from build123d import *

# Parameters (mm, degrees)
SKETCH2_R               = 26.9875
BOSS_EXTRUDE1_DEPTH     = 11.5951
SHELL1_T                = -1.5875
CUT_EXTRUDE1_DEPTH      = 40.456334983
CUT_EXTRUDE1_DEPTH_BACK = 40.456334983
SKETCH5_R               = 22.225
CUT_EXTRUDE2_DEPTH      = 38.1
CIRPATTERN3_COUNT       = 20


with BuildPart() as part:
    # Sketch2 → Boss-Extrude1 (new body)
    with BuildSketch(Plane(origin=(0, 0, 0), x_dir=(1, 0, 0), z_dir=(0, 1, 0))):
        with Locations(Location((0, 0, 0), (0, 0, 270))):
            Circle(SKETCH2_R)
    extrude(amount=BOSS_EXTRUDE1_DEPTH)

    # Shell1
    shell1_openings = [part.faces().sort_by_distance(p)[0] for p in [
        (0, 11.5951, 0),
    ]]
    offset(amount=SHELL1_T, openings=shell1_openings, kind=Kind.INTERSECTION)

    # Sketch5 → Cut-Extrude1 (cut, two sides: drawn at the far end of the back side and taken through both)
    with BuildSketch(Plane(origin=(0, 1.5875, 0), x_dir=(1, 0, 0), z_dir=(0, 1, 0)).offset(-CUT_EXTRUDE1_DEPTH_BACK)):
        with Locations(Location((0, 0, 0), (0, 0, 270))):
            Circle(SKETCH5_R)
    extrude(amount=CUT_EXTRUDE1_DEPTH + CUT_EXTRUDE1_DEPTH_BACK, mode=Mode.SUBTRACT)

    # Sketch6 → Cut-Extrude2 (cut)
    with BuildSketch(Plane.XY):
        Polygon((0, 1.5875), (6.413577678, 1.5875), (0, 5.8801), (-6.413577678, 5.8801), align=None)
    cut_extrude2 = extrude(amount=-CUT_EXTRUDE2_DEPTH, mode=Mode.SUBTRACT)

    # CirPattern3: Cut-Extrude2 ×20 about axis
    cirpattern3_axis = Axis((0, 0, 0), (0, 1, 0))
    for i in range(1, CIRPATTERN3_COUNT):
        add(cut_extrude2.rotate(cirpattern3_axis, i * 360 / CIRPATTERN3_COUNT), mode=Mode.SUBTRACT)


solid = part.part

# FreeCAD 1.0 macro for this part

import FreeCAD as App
import Part
import Sketcher

V = App.Vector
Q = App.Units.Quantity


def faces_at(feature, points):
    """Names of the faces that lie closest to the given points."""
    faces = feature.Shape.Faces
    near = lambda p: min(range(len(faces)), key=lambda i: faces[i].distToShape(Part.Vertex(*p))[0])
    return sorted({f"Face{near(p) + 1}" for p in points})

doc = App.newDocument("Part")
body = doc.addObject("PartDesign::Body", "Body")

sketch1 = doc.addObject("Sketcher::SketchObject", "Sketch")
body.addObject(sketch1)
sketch1.AttachmentSupport = (doc.XZ_Plane, [""])
sketch1.MapMode = "FlatFace"
sketch1.addGeometry(Part.Circle(V(0, 0, 0), V(0, 0, 1), 27), False)
sketch1.addConstraint(Sketcher.Constraint("Coincident", 0, 3, -1, 1))
sketch1.addConstraint(Sketcher.Constraint("Diameter", 0, Q("2.125 in")))
pad1 = doc.addObject("PartDesign::Pad", "Pad")
body.addObject(pad1)
pad1.Profile = sketch1
pad1.Length = Q("0.4565 in")
pad1.Reversed = True
doc.recompute()

thickness = doc.addObject("PartDesign::Thickness", "Thickness")
body.addObject(thickness)
thickness.Base = (pad1, faces_at(pad1, [(0, 11.595, 0)]))
thickness.Value = Q("0.0625 in")
thickness.Reversed = True
thickness.Join = "Intersection"

sketch2 = doc.addObject("Sketcher::SketchObject", "Sketch001")
body.addObject(sketch2)
sketch2.AttachmentSupport = (doc.XZ_Plane, [""])
sketch2.MapMode = "FlatFace"
sketch2.AttachmentOffset = App.Placement(V(0, 0, -0.0625 * 25.4), App.Rotation())
sketch2.addGeometry(Part.Circle(V(0, 0, 0), V(0, 0, 1), 22), False)
sketch2.addConstraint(Sketcher.Constraint("Coincident", 0, 3, -1, 1))
sketch2.addConstraint(Sketcher.Constraint("Diameter", 0, Q("1.75 in")))
pocket1 = doc.addObject("PartDesign::Pocket", "Pocket")
body.addObject(pocket1)
pocket1.Profile = sketch2
pocket1.Type = "ThroughAll"
pocket1.Midplane = True

sketch3 = doc.addObject("Sketcher::SketchObject", "Sketch002")
body.addObject(sketch3)
sketch3.AttachmentSupport = (doc.XY_Plane, [""])
sketch3.MapMode = "FlatFace"
sketch3.addGeometry(Part.LineSegment(V(0, 2, 0), V(6, 2, 0)), False)
sketch3.addGeometry(Part.LineSegment(V(6, 2, 0), V(0, 6, 0)), False)
sketch3.addGeometry(Part.LineSegment(V(0, 6, 0), V(-6, 6, 0)), False)
sketch3.addGeometry(Part.LineSegment(V(-6, 6, 0), V(0, 2, 0)), False)
sketch3.addConstraint(Sketcher.Constraint("Coincident", 0, 2, 1, 1))
sketch3.addConstraint(Sketcher.Constraint("Coincident", 1, 2, 2, 1))
sketch3.addConstraint(Sketcher.Constraint("Coincident", 2, 2, 3, 1))
sketch3.addConstraint(Sketcher.Constraint("Coincident", 3, 2, 0, 1))
sketch3.addConstraint(Sketcher.Constraint("Horizontal", 0))
sketch3.addConstraint(Sketcher.Constraint("Horizontal", 2))
sketch3.addConstraint(Sketcher.Constraint("PointOnObject", 1, 2, -2))
sketch3.addConstraint(Sketcher.Constraint("PointOnObject", 3, 2, -2))
sketch3.addConstraint(Sketcher.Constraint("Parallel", 1, 3))
sketch3.addConstraint(Sketcher.Constraint("DistanceY", -1, 1, 0, 2, Q("0.0625 in")))
sketch3.addConstraint(Sketcher.Constraint("DistanceY", 0, 2, 1, 2, Q("0.169 in")))
sketch3.addConstraint(Sketcher.Constraint("Distance", 1, Q("7.717538 mm")))
pocket2 = doc.addObject("PartDesign::Pocket", "Pocket001")
body.addObject(pocket2)
pocket2.Profile = sketch3
pocket2.Length = Q("1.5 in")
doc.recompute()

polarpattern = doc.addObject("PartDesign::PolarPattern", "PolarPattern")
body.addObject(polarpattern)
polarpattern.Originals = [pocket2]
polarpattern.Axis = (doc.Y_Axis, [""])
polarpattern.Angle = 360
polarpattern.Occurrences = 20
body.Tip = polarpattern

doc.recompute()
